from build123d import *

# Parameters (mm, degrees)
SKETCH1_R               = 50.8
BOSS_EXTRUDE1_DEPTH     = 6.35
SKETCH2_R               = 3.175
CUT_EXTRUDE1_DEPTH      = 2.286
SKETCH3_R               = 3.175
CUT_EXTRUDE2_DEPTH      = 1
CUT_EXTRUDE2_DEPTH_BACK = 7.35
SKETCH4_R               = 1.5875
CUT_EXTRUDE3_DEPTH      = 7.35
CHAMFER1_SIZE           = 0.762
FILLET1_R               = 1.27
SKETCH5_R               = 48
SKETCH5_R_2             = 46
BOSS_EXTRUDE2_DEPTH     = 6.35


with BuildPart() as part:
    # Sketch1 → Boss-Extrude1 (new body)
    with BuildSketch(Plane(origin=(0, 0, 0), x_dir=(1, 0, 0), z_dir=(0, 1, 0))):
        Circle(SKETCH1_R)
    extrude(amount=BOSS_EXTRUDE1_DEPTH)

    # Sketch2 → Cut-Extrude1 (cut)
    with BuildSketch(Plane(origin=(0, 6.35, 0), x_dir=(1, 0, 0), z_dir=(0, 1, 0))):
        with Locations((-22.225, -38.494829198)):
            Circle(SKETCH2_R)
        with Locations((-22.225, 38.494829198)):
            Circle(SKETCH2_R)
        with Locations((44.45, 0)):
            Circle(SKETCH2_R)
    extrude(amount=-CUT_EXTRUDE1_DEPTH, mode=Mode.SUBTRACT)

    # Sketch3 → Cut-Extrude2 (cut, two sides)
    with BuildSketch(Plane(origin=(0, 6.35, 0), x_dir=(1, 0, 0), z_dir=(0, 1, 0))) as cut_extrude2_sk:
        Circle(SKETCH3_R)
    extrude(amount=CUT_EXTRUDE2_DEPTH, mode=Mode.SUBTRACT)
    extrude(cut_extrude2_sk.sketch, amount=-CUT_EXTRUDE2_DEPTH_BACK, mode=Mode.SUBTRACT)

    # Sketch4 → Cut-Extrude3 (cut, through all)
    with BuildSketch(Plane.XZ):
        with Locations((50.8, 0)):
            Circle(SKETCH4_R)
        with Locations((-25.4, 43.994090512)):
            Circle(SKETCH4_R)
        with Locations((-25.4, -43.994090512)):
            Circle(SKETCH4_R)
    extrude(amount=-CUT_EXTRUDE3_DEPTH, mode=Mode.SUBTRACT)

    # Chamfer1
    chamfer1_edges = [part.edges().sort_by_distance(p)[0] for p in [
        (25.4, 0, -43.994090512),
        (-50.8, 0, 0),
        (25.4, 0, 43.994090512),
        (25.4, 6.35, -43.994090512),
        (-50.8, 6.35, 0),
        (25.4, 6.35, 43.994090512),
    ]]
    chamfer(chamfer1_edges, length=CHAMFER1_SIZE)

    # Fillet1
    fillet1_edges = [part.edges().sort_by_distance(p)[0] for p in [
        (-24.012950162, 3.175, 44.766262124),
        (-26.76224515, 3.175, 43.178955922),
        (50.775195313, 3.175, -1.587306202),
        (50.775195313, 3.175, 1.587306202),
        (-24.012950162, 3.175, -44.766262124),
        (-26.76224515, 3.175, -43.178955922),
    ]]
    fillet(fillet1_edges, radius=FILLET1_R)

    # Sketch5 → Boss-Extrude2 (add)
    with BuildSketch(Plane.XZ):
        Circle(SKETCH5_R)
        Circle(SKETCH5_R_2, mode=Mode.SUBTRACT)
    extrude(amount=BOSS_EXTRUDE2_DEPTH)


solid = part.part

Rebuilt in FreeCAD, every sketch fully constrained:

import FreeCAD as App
import Part
import Sketcher

V = App.Vector
Q = App.Units.Quantity


def edges_at(feature, points):
    """Names of the edges that pass closest to the given points."""
    edges = feature.Shape.Edges
    near = lambda p: min(range(len(edges)), key=lambda i: edges[i].distToShape(Part.Vertex(*p))[0])
    return sorted({f"Edge{near(p) + 1}" for p in points})

doc = App.newDocument("Part")
body = doc.addObject("PartDesign::Body", "Body")

# Sketch on XZ plane
sketch1 = body.newObject("Sketcher::SketchObject", "Sketch")
sketch1.AttachmentSupport = (doc.getObject("XZ_Plane"), [""])
sketch1.MapMode = "FlatFace"
sketch1.addGeometry(Part.Circle(V(0, 0, 0), V(0, 0, 1), 51), False)
sketch1.addConstraint(Sketcher.Constraint("Coincident", 0, 3, -1, 1))
sketch1.addConstraint(Sketcher.Constraint("Diameter", 0, Q("4 in")))
pad1 = body.newObject("PartDesign::Pad", "Pad")
pad1.Profile = sketch1
pad1.Length = Q("0.25 in")
pad1.Reversed = True

# Sketch on XZ plane
sketch2 = body.newObject("Sketcher::SketchObject", "Sketch001")
sketch2.AttachmentSupport = (doc.getObject("XZ_Plane"), [""])
sketch2.MapMode = "FlatFace"
sketch2.AttachmentOffset = App.Placement(V(0, 0, -0.25 * 25.4), App.Rotation())
sketch2.addGeometry(Part.Circle(V(-22.2, 38.5, 0), V(0, 0, 1), 3.2), False)
sketch2.addGeometry(Part.Circle(V(-22.2, -38.5, 0), V(0, 0, 1), 3.2), False)
sketch2.addGeometry(Part.Circle(V(44.5, 0, 0), V(0, 0, 1), 3.2), False)
sketch2.addConstraint(Sketcher.Constraint("Equal", 0, 1))
sketch2.addConstraint(Sketcher.Constraint("Equal", 1, 2))
sketch2.addConstraint(Sketcher.Constraint("Symmetric", 0, 3, 1, 3, -1))
sketch2.addConstraint(Sketcher.Constraint("PointOnObject", 2, 3, -1))
sketch2.addConstraint(Sketcher.Constraint("Diameter", 0, Q("0.25 in")))
sketch2.addConstraint(Sketcher.Constraint("DistanceX", -1, 1, 2, 3, Q("1.75 in")))
sketch2.addConstraint(Sketcher.Constraint("DistanceX", 0, 3, -1, 1, Q("0.875 in")))
sketch2.addConstraint(Sketcher.Constraint("DistanceY", -1, 1, 0, 3, 38.494829))
pocket1 = body.newObject("PartDesign::Pocket", "Pocket")
pocket1.Profile = sketch2
pocket1.Length = Q("0.09 in")
pocket1.Reversed = True

# Sketch on XZ plane
sketch3 = body.newObject("Sketcher::SketchObject", "Sketch002")
sketch3.AttachmentSupport = (doc.getObject("XZ_Plane"), [""])
sketch3.MapMode = "FlatFace"
sketch3.AttachmentOffset = App.Placement(V(0, 0, -0.25 * 25.4), App.Rotation())
sketch3.addGeometry(Part.Circle(V(0, 0, 0), V(0, 0, 1), 3.2), False)
sketch3.addConstraint(Sketcher.Constraint("Coincident", 0, 3, -1, 1))
sketch3.addConstraint(Sketcher.Constraint("Diameter", 0, Q("0.25 in")))
pocket2 = body.newObject("PartDesign::Pocket", "Pocket001")
pocket2.Profile = sketch3
pocket2.Type = "ThroughAll"
pocket2.Midplane = True

# Sketch on XZ plane
sketch4 = body.newObject("Sketcher::SketchObject", "Sketch003")
sketch4.AttachmentSupport = (doc.getObject("XZ_Plane"), [""])
sketch4.MapMode = "FlatFace"
sketch4.addGeometry(Part.Circle(V(50.8, 0, 0), V(0, 0, 1), 1.6), False)
sketch4.addGeometry(Part.Circle(V(-25.4, 44, 0), V(0, 0, 1), 1.6), False)
sketch4.addGeometry(Part.Circle(V(-25.4, -44, 0), V(0, 0, 1), 1.6), False)
sketch4.addConstraint(Sketcher.Constraint("Equal", 0, 1))
sketch4.addConstraint(Sketcher.Constraint("Equal", 1, 2))
sketch4.addConstraint(Sketcher.Constraint("Symmetric", 1, 3, 2, 3, -1))
sketch4.addConstraint(Sketcher.Constraint("PointOnObject", 0, 3, -1))
sketch4.addConstraint(Sketcher.Constraint("Diameter", 0, Q("0.125 in")))
sketch4.addConstraint(Sketcher.Constraint("DistanceX", -1, 1, 0, 3, Q("2 in")))
sketch4.addConstraint(Sketcher.Constraint("DistanceX", 1, 3, -1, 1, Q("1 in")))
sketch4.addConstraint(Sketcher.Constraint("DistanceY", -1, 1, 1, 3, 43.994091))
pocket3 = body.newObject("PartDesign::Pocket", "Pocket002")
pocket3.Profile = sketch4
pocket3.Type = "ThroughAll"
doc.recompute()

chamfer = body.newObject("PartDesign::Chamfer", "Chamfer")
chamfer.Base = (pocket3, edges_at(pocket3, [
    (25.4, 0, -43.994),
    (-50.8, 0, 0),
    (25.4, 0, 43.994),
    (25.4, 6.35, -43.994),
    (-50.8, 6.35, 0),
    (25.4, 6.35, 43.994),
]))
chamfer.Size = Q("0.03 in")
doc.recompute()

fillet = body.newObject("PartDesign::Fillet", "Fillet")
fillet.Base = (chamfer, edges_at(chamfer, [
    (-24.013, 3.175, 44.766),
    (-26.762, 3.175, 43.179),
    (50.775, 3.175, -1.587),
    (50.775, 3.175, 1.587),
    (-24.013, 3.175, -44.766),
    (-26.762, 3.175, -43.179),
]))
fillet.Radius = Q("0.05 in")

# Sketch on XZ plane
sketch5 = body.newObject("Sketcher::SketchObject", "Sketch004")
sketch5.AttachmentSupport = (doc.getObject("XZ_Plane"), [""])
sketch5.MapMode = "FlatFace"
sketch5.addGeometry(Part.Circle(V(0, 0, 0), V(0, 0, 1), 48), False)
sketch5.addGeometry(Part.Circle(V(0, 0, 0), V(0, 0, 1), 46), False)
sketch5.addConstraint(Sketcher.Constraint("Coincident", 0, 3, -1, 1))
sketch5.addConstraint(Sketcher.Constraint("Coincident", 1, 3, -1, 1))
sketch5.addConstraint(Sketcher.Constraint("Diameter", 0, 96.0))
sketch5.addConstraint(Sketcher.Constraint("Diameter", 1, 92.0))
pad2 = body.newObject("PartDesign::Pad", "Pad001")
pad2.Profile = sketch5
pad2.Length = Q("0.25 in")

doc.recompute()
